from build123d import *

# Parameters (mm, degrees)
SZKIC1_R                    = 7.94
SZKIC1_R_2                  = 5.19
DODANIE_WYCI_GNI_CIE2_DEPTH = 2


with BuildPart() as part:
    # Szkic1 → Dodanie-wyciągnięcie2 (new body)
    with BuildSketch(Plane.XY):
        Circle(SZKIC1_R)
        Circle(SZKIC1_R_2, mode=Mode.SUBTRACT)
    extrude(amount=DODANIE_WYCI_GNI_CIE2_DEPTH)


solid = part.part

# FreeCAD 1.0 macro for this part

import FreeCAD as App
import Part
import Sketcher
Q = App.Units.Quantity

doc = App.newDocument("Part")
body = doc.addObject("PartDesign::Body", "Body")

# Sketch on XY plane
sketch1 = body.newObject("Sketcher::SketchObject", "Sketch")
sketch1.AttachmentSupport = (doc.getObject("XY_Plane"), [""])
sketch1.MapMode = "FlatFace"
sketch1.addGeometry(Part.Circle(App.Vector(0, 0, 0), App.Vector(0, 0, 1), 8), False)
sketch1.addGeometry(Part.Circle(App.Vector(0, 0, 0), App.Vector(0, 0, 1), 5), False)
sketch1.addConstraint(Sketcher.Constraint("Coincident", 0, 3, -1, 1))
sketch1.addConstraint(Sketcher.Constraint("Coincident", 1, 3, -1, 1))
sketch1.addConstraint(Sketcher.Constraint("Diameter", 0, Q("15.88 mm")))
sketch1.addConstraint(Sketcher.Constraint("Diameter", 1, Q("10.38 mm")))
pad1 = body.newObject("PartDesign::Pad", "Pad")
pad1.Profile = sketch1
pad1.Length = 2

doc.recompute()
